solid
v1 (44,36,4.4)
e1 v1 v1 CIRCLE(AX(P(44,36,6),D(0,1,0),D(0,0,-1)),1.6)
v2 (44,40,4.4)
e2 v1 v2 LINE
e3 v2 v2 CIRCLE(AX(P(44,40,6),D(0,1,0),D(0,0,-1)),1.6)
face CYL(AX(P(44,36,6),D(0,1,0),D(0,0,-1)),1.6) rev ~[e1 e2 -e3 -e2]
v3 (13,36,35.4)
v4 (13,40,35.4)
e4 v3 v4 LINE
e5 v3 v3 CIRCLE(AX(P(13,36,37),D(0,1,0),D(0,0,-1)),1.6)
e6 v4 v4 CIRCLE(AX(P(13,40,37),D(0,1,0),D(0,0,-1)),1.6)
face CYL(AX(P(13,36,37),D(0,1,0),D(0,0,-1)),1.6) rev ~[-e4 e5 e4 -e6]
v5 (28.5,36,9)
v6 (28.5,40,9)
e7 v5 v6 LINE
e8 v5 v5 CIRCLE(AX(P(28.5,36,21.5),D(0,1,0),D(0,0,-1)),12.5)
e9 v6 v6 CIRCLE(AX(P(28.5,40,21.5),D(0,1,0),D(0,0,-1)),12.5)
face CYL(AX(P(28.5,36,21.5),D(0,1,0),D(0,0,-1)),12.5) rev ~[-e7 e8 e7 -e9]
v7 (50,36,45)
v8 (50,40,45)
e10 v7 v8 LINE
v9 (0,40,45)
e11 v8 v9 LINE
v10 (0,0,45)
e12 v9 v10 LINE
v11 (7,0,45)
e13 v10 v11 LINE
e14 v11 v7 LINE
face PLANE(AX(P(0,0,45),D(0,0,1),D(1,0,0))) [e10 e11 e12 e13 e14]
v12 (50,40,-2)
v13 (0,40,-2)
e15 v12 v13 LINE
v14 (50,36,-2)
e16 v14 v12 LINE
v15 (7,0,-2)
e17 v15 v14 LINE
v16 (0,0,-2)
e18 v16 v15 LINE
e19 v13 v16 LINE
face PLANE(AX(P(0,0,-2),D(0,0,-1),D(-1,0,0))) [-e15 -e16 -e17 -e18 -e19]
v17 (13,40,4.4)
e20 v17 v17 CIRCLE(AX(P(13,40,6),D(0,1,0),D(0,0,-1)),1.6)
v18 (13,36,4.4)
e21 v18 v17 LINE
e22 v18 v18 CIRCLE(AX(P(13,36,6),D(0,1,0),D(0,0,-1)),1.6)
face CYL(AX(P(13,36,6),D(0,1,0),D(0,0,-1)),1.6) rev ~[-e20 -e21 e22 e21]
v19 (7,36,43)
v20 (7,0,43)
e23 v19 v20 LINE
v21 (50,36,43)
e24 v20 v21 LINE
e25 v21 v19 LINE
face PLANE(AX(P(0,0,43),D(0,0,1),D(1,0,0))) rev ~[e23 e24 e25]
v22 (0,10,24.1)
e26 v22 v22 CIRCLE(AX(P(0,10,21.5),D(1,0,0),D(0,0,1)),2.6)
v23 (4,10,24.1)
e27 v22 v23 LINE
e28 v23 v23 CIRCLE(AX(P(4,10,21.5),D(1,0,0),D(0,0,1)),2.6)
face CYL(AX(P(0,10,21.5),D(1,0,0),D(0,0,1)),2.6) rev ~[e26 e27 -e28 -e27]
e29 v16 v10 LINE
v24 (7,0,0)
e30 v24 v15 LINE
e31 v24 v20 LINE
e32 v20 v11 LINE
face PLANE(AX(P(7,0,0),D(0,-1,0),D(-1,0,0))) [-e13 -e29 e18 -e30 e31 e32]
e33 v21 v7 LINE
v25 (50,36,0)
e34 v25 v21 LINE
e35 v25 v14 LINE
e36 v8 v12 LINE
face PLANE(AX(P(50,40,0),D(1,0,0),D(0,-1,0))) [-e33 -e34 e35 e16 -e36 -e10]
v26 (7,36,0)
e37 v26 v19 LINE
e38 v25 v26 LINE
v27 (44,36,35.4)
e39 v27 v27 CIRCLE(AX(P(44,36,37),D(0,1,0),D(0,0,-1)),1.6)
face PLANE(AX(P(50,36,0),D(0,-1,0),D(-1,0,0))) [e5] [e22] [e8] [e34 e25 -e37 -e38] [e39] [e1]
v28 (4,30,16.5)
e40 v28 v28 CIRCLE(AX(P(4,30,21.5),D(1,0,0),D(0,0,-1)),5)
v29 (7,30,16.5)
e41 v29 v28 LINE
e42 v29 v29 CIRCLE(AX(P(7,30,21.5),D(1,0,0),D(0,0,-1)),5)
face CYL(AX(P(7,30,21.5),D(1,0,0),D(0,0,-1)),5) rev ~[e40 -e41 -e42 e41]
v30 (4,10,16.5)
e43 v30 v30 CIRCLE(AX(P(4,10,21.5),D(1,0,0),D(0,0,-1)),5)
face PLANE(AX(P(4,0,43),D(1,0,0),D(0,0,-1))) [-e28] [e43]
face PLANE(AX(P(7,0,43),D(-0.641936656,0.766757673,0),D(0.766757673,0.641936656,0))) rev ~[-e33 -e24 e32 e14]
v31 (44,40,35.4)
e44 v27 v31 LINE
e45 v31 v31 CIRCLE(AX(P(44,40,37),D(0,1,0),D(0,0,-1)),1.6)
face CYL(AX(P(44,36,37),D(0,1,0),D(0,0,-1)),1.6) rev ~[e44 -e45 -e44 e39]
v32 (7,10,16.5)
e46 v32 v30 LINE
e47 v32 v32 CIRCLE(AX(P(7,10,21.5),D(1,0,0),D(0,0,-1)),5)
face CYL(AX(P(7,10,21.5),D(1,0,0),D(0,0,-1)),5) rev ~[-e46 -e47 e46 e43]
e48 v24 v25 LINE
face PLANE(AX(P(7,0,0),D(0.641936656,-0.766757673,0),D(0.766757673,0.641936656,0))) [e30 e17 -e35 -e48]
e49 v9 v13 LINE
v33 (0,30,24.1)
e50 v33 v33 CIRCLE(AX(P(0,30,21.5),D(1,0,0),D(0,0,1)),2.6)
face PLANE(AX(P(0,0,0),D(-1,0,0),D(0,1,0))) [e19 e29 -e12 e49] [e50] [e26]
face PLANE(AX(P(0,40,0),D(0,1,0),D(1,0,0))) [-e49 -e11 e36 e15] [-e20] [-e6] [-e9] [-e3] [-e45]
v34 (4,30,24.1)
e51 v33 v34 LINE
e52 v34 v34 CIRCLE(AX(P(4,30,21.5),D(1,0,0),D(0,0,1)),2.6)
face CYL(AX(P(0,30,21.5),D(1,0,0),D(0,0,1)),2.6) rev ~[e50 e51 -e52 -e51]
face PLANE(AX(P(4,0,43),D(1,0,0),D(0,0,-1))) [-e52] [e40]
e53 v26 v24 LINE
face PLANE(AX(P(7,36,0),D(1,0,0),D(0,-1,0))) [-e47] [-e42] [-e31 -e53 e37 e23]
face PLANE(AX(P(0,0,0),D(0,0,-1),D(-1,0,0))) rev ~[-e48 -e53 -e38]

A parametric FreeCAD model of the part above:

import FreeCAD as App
import Part
import Sketcher
from FreeCAD import Vector

doc = App.newDocument("Part")
body = doc.addObject("PartDesign::Body", "Body")

sketch1 = body.newObject("Sketcher::SketchObject", "Sketch")
sketch1.AttachmentSupport = (doc.getObject("XY_Plane"), [""])
sketch1.MapMode = "FlatFace"
sketch1.addGeometry(Part.LineSegment(Vector(0, 40, 0), Vector(0, 0, 0)), False)
sketch1.addGeometry(Part.LineSegment(Vector(0, 0, 0), Vector(7, 0, 0)), False)
sketch1.addGeometry(Part.LineSegment(Vector(7, 0, 0), Vector(7, 36, 0)), False)
sketch1.addGeometry(Part.LineSegment(Vector(7, 36, 0), Vector(50, 36, 0)), False)
sketch1.addGeometry(Part.LineSegment(Vector(50, 36, 0), Vector(50, 40, 0)), False)
sketch1.addGeometry(Part.LineSegment(Vector(50, 40, 0), Vector(0, 40, 0)), False)
sketch1.addConstraint(Sketcher.Constraint("Coincident", 0, 2, 1, 1))
sketch1.addConstraint(Sketcher.Constraint("Coincident", 1, 2, 2, 1))
sketch1.addConstraint(Sketcher.Constraint("Coincident", 2, 2, 3, 1))
sketch1.addConstraint(Sketcher.Constraint("Coincident", 3, 2, 4, 1))
sketch1.addConstraint(Sketcher.Constraint("Coincident", 4, 2, 5, 1))
sketch1.addConstraint(Sketcher.Constraint("Coincident", 5, 2, 0, 1))
sketch1.addConstraint(Sketcher.Constraint("Vertical", 0))
sketch1.addConstraint(Sketcher.Constraint("Horizontal", 1))
sketch1.addConstraint(Sketcher.Constraint("Vertical", 2))
sketch1.addConstraint(Sketcher.Constraint("Horizontal", 3))
sketch1.addConstraint(Sketcher.Constraint("Vertical", 4))
sketch1.addConstraint(Sketcher.Constraint("Horizontal", 5))
sketch1.addConstraint(Sketcher.Constraint("Coincident", 0, 2, -1, 1))
sketch1.addConstraint(Sketcher.Constraint("DistanceX", 1, 1, 1, 2, 7.0))
sketch1.addConstraint(Sketcher.Constraint("DistanceX", 3, 1, 3, 2, 43.0))
sketch1.addConstraint(Sketcher.Constraint("DistanceY", 0, 2, 0, 1, 40.0))
sketch1.addConstraint(Sketcher.Constraint("DistanceY", 4, 1, 4, 2, 4.0))
pad1 = body.newObject("PartDesign::Pad", "Pad")
pad1.Profile = sketch1
pad1.Length = 43

sketch2 = body.newObject("Sketcher::SketchObject", "Sketch001")
sketch2.AttachmentSupport = (doc.getObject("XY_Plane"), [""])
sketch2.MapMode = "FlatFace"
sketch2.AttachmentOffset = App.Placement(Vector(0, 0, 43), App.Rotation())
sketch2.addGeometry(Part.LineSegment(Vector(0, 0, 0), Vector(7, 0, 0)), False)
sketch2.addGeometry(Part.LineSegment(Vector(7, 0, 0), Vector(50, 36, 0)), False)
sketch2.addGeometry(Part.LineSegment(Vector(50, 36, 0), Vector(50, 40, 0)), False)
sketch2.addGeometry(Part.LineSegment(Vector(50, 40, 0), Vector(0, 40, 0)), False)
sketch2.addGeometry(Part.LineSegment(Vector(0, 40, 0), Vector(0, 0, 0)), False)
sketch2.addConstraint(Sketcher.Constraint("Coincident", 0, 2, 1, 1))
sketch2.addConstraint(Sketcher.Constraint("Coincident", 1, 2, 2, 1))
sketch2.addConstraint(Sketcher.Constraint("Coincident", 2, 2, 3, 1))
sketch2.addConstraint(Sketcher.Constraint("Coincident", 3, 2, 4, 1))
sketch2.addConstraint(Sketcher.Constraint("Coincident", 4, 2, 0, 1))
sketch2.addConstraint(Sketcher.Constraint("Horizontal", 0))
sketch2.addConstraint(Sketcher.Constraint("Vertical", 2))
sketch2.addConstraint(Sketcher.Constraint("Horizontal", 3))
sketch2.addConstraint(Sketcher.Constraint("Vertical", 4))
sketch2.addConstraint(Sketcher.Constraint("Coincident", 4, 2, -1, 1))
sketch2.addConstraint(Sketcher.Constraint("DistanceX", 0, 1, 0, 2, 7.0))
sketch2.addConstraint(Sketcher.Constraint("DistanceX", 3, 2, 3, 1, 50.0))
sketch2.addConstraint(Sketcher.Constraint("DistanceY", 2, 1, 2, 2, 4.0))
sketch2.addConstraint(Sketcher.Constraint("DistanceY", 4, 2, 4, 1, 40.0))
pad2 = body.newObject("PartDesign::Pad", "Pad001")
pad2.Profile = sketch2
pad2.Length = 2

sketch3 = body.newObject("Sketcher::SketchObject", "Sketch002")
sketch3.AttachmentSupport = (doc.getObject("XY_Plane"), [""])
sketch3.MapMode = "FlatFace"
sketch3.addGeometry(Part.LineSegment(Vector(50, 36, 0), Vector(7, 0, 0)), False)
sketch3.addGeometry(Part.LineSegment(Vector(7, 0, 0), Vector(0, 0, 0)), False)
sketch3.addGeometry(Part.LineSegment(Vector(0, 0, 0), Vector(0, 40, 0)), False)
sketch3.addGeometry(Part.LineSegment(Vector(0, 40, 0), Vector(50, 40, 0)), False)
sketch3.addGeometry(Part.LineSegment(Vector(50, 40, 0), Vector(50, 36, 0)), False)
sketch3.addConstraint(Sketcher.Constraint("Coincident", 0, 2, 1, 1))
sketch3.addConstraint(Sketcher.Constraint("Coincident", 1, 2, 2, 1))
sketch3.addConstraint(Sketcher.Constraint("Coincident", 2, 2, 3, 1))
sketch3.addConstraint(Sketcher.Constraint("Coincident", 3, 2, 4, 1))
sketch3.addConstraint(Sketcher.Constraint("Coincident", 4, 2, 0, 1))
sketch3.addConstraint(Sketcher.Constraint("Horizontal", 1))
sketch3.addConstraint(Sketcher.Constraint("Vertical", 2))
sketch3.addConstraint(Sketcher.Constraint("Horizontal", 3))
sketch3.addConstraint(Sketcher.Constraint("Vertical", 4))
sketch3.addConstraint(Sketcher.Constraint("Coincident", 1, 2, -1, 1))
sketch3.addConstraint(Sketcher.Constraint("DistanceX", 1, 2, 1, 1, 7.0))
sketch3.addConstraint(Sketcher.Constraint("DistanceX", 3, 1, 3, 2, 50.0))
sketch3.addConstraint(Sketcher.Constraint("DistanceY", 2, 1, 2, 2, 40.0))
sketch3.addConstraint(Sketcher.Constraint("DistanceY", 4, 2, 4, 1, 4.0))
pad3 = body.newObject("PartDesign::Pad", "Pad002")
pad3.Profile = sketch3
pad3.Length = 2
pad3.Reversed = True

sketch4 = body.newObject("Sketcher::SketchObject", "Sketch003")
sketch4.AttachmentSupport = (doc.getObject("XZ_Plane"), [""])
sketch4.MapMode = "FlatFace"
sketch4.AttachmentOffset = App.Placement(Vector(0, 0, -36), App.Rotation())
sketch4.addGeometry(Part.Circle(Vector(44, 37, 0), Vector(0, 0, 1), 1.6), False)
sketch4.addGeometry(Part.Circle(Vector(44, 6, 0), Vector(0, 0, 1), 1.6), False)
sketch4.addGeometry(Part.Circle(Vector(13, 6, 0), Vector(0, 0, 1), 1.6), False)
sketch4.addGeometry(Part.Circle(Vector(13, 37, 0), Vector(0, 0, 1), 1.6), False)
sketch4.addConstraint(Sketcher.Constraint("Equal", 0, 1))
sketch4.addConstraint(Sketcher.Constraint("Equal", 1, 2))
sketch4.addConstraint(Sketcher.Constraint("Equal", 2, 3))
sketch4.addConstraint(Sketcher.Constraint("Horizontal", 1, 3, 2, 3))
sketch4.addConstraint(Sketcher.Constraint("Horizontal", 0, 3, 3, 3))
sketch4.addConstraint(Sketcher.Constraint("Vertical", 0, 3, 1, 3))
sketch4.addConstraint(Sketcher.Constraint("Vertical", 2, 3, 3, 3))
sketch4.addConstraint(Sketcher.Constraint("Diameter", 0, 3.2))
sketch4.addConstraint(Sketcher.Constraint("DistanceX", -1, 1, 0, 3, 44.0))
sketch4.addConstraint(Sketcher.Constraint("DistanceY", -1, 1, 0, 3, 37.0))
sketch4.addConstraint(Sketcher.Constraint("DistanceY", -1, 1, 1, 3, 6.0))
sketch4.addConstraint(Sketcher.Constraint("DistanceX", -1, 1, 2, 3, 13.0))
doc.recompute()
hole = body.newObject("PartDesign::Hole", "Hole")
hole.Profile = sketch4
hole.ThreadType = "None"
hole.Diameter = 3.2
hole.DepthType = "ThroughAll"

sketch5 = body.newObject("Sketcher::SketchObject", "Sketch004")
sketch5.AttachmentSupport = (doc.getObject("XZ_Plane"), [""])
sketch5.MapMode = "FlatFace"
sketch5.AttachmentOffset = App.Placement(Vector(0, 0, -36), App.Rotation())
sketch5.addGeometry(Part.Circle(Vector(28, 22, 0), Vector(0, 0, 1), 12), False)
sketch5.addConstraint(Sketcher.Constraint("Diameter", 0, 25.0))
sketch5.addConstraint(Sketcher.Constraint("DistanceX", -1, 1, 0, 3, 28.5))
sketch5.addConstraint(Sketcher.Constraint("DistanceY", -1, 1, 0, 3, 21.5))
doc.recompute()
hole2 = body.newObject("PartDesign::Hole", "Hole001")
hole2.Profile = sketch5
hole2.ThreadType = "None"
hole2.Diameter = 25
hole2.DepthType = "ThroughAll"

sketch6 = body.newObject("Sketcher::SketchObject", "Sketch005")
sketch6.AttachmentSupport = (doc.getObject("YZ_Plane"), [""])
sketch6.MapMode = "FlatFace"
sketch6.addGeometry(Part.Circle(Vector(30, 21.5, 0), Vector(0, 0, 1), 2.6), False)
sketch6.addGeometry(Part.Circle(Vector(10, 21.5, 0), Vector(0, 0, 1), 2.6), False)
sketch6.addConstraint(Sketcher.Constraint("Equal", 0, 1))
sketch6.addConstraint(Sketcher.Constraint("Horizontal", 0, 3, 1, 3))
sketch6.addConstraint(Sketcher.Constraint("Diameter", 0, 5.2))
sketch6.addConstraint(Sketcher.Constraint("DistanceX", -1, 1, 0, 3, 30.0))
sketch6.addConstraint(Sketcher.Constraint("DistanceX", -1, 1, 1, 3, 10.0))
sketch6.addConstraint(Sketcher.Constraint("DistanceY", -1, 1, 0, 3, 21.5))
doc.recompute()
hole3 = body.newObject("PartDesign::Hole", "Hole002")
hole3.Profile = sketch6
hole3.ThreadType = "None"
hole3.Diameter = 5.2
hole3.DepthType = "ThroughAll"
hole3.Reversed = True

sketch7 = body.newObject("Sketcher::SketchObject", "Sketch006")
sketch7.AttachmentSupport = (doc.getObject("YZ_Plane"), [""])
sketch7.MapMode = "FlatFace"
sketch7.AttachmentOffset = App.Placement(Vector(0, 0, 7), App.Rotation())
sketch7.addGeometry(Part.Circle(Vector(30, 21.5, 0), Vector(0, 0, 1), 5), False)
sketch7.addGeometry(Part.Circle(Vector(30, 21.5, 0), Vector(0, 0, 1), 2.6), False)
sketch7.addGeometry(Part.Circle(Vector(10, 21.5, 0), Vector(0, 0, 1), 5), False)
sketch7.addGeometry(Part.Circle(Vector(10, 21.5, 0), Vector(0, 0, 1), 2.6), False)
sketch7.addConstraint(Sketcher.Constraint("Coincident", 1, 3, 0, 3))
sketch7.addConstraint(Sketcher.Constraint("Coincident", 3, 3, 2, 3))
sketch7.addConstraint(Sketcher.Constraint("Equal", 0, 2))
sketch7.addConstraint(Sketcher.Constraint("Equal", 1, 3))
sketch7.addConstraint(Sketcher.Constraint("Horizontal", 1, 3, 2, 3))
sketch7.addConstraint(Sketcher.Constraint("Diameter", 0, 10.0))
sketch7.addConstraint(Sketcher.Constraint("DistanceX", -1, 1, 2, 3, 10.0))
sketch7.addConstraint(Sketcher.Constraint("Diameter", 1, 5.2))
sketch7.addConstraint(Sketcher.Constraint("DistanceX", -1, 1, 0, 3, 30.0))
sketch7.addConstraint(Sketcher.Constraint("DistanceY", -1, 1, 0, 3, 21.5))
pocket1 = body.newObject("PartDesign::Pocket", "Pocket")
pocket1.Profile = sketch7
pocket1.Length = 3

doc.recompute()
